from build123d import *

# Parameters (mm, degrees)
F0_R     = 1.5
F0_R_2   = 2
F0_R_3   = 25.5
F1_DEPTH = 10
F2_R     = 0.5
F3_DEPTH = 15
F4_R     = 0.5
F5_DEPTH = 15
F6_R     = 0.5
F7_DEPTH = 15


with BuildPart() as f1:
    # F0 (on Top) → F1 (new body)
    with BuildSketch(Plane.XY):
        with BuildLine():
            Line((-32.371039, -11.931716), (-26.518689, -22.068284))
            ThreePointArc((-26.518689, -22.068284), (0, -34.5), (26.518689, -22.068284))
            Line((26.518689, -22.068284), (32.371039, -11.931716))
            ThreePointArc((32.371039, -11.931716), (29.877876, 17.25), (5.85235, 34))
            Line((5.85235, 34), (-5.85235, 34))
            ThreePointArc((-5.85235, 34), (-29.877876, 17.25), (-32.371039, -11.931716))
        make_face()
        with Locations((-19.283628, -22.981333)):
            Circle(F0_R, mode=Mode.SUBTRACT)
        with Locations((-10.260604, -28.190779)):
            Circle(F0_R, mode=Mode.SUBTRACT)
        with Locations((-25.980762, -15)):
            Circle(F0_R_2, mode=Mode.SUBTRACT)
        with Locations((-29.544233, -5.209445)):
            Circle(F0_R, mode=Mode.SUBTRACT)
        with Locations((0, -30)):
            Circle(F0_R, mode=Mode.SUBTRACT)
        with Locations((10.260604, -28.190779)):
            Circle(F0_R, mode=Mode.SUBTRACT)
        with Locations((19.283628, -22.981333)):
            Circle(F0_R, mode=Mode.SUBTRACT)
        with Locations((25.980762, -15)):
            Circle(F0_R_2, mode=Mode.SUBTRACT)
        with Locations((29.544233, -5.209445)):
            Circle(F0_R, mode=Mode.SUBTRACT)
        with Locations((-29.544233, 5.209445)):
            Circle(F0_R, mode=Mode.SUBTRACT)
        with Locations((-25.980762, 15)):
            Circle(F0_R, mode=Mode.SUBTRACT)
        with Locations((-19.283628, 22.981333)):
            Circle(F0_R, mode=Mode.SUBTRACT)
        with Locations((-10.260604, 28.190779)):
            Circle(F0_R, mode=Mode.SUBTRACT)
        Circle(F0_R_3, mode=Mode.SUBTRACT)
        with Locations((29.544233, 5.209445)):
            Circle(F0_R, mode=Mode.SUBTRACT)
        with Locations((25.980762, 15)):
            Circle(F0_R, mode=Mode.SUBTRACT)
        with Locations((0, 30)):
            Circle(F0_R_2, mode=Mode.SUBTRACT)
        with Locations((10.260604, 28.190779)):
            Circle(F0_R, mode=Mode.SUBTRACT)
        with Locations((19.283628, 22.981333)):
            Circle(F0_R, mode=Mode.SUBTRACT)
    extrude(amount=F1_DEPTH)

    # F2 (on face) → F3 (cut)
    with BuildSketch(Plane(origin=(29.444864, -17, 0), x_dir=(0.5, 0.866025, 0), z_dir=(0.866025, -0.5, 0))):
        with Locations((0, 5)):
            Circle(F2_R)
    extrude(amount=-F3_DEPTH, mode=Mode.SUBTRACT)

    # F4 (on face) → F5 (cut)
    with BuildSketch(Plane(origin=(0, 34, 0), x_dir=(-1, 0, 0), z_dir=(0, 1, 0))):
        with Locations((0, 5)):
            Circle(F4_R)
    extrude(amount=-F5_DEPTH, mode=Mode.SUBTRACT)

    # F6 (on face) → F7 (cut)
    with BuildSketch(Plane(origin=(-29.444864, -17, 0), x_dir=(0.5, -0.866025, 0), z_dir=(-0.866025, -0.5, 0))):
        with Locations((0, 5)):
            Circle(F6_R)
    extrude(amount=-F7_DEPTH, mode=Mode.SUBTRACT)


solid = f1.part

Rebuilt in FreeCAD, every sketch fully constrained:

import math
import FreeCAD as App
import Part
import Sketcher
Q = App.Units.Quantity

doc = App.newDocument("Part")
params = doc.addObject("Spreadsheet::Sheet", "Params")
for row, (alias, value) in enumerate([
    ("sketch1_diameter", "3 mm"),
    ("sketch1_diameter2", "4 mm"),
    ("sketch1_diameter3", "51 mm"),
    ("sketch1_radius", "34.500001 mm"),
    ("pad1_length", "10 mm"),
    ("sketch2_diameter", "1 mm"),
    ("pocket1_length", "15 mm"),
    ("sketch3_diameter", "1 mm"),
    ("pocket2_length", "15 mm"),
    ("sketch4_diameter", "1 mm"),
    ("pocket3_length", "15 mm"),
], start=1):
    params.set(f"A{row}", alias)
    params.set(f"B{row}", "=" + value)
    params.setAlias(f"B{row}", alias)

body = doc.addObject("PartDesign::Body", "Body")

# Sketch on XY plane
sketch1 = body.newObject("Sketcher::SketchObject", "Sketch")
sketch1.AttachmentSupport = (doc.getObject("XY_Plane"), [""])
sketch1.MapMode = "FlatFace"
sketch1.addGeometry([
    Part.LineSegment(App.Vector(-32.371039, -11.931716, 0), App.Vector(-26.518689, -22.068284, 0)),  # 0
    Part.ArcOfCircle(Part.Circle(App.Vector(0, 0.000001, 0), App.Vector(0, 0, 1), 34.500001), math.radians(-140.233498), math.radians(-39.766502)),  # 1
    Part.LineSegment(App.Vector(26.518689, -22.068284, 0), App.Vector(32.371039, -11.931716, 0)),  # 2
    Part.ArcOfCircle(Part.Circle(App.Vector(-0.000001, -0.000001, 0), App.Vector(0, 0, 1), 34.500001), math.radians(-20.233497), math.radians(80.233497)),  # 3
    Part.LineSegment(App.Vector(5.85235, 34, 0), App.Vector(-5.85235, 34, 0)),  # 4
    Part.ArcOfCircle(Part.Circle(App.Vector(0.000001, -0.000001, 0), App.Vector(0, 0, 1), 34.500001), math.radians(99.766503), math.radians(200.233497)),  # 5
    Part.Circle(App.Vector(-19.283628, -22.981333, 0), App.Vector(0, 0, 1), 1.5),  # 6
    Part.Circle(App.Vector(-10.260604, -28.190779, 0), App.Vector(0, 0, 1), 1.5),  # 7
    Part.Circle(App.Vector(-25.980762, -15, 0), App.Vector(0, 0, 1), 2),  # 8
    Part.Circle(App.Vector(-29.544233, -5.209445, 0), App.Vector(0, 0, 1), 1.5),  # 9
    Part.Circle(App.Vector(0, -30, 0), App.Vector(0, 0, 1), 1.5),  # 10
    Part.Circle(App.Vector(10.260604, -28.190779, 0), App.Vector(0, 0, 1), 1.5),  # 11
    Part.Circle(App.Vector(19.283628, -22.981333, 0), App.Vector(0, 0, 1), 1.5),  # 12
    Part.Circle(App.Vector(0, 0, 0), App.Vector(0, 0, 1), 25.5),  # 13
    Part.Circle(App.Vector(25.980762, -15, 0), App.Vector(0, 0, 1), 2),  # 14
    Part.Circle(App.Vector(29.544233, -5.209445, 0), App.Vector(0, 0, 1), 1.5),  # 15
    Part.Circle(App.Vector(-29.544233, 5.209445, 0), App.Vector(0, 0, 1), 1.5),  # 16
    Part.Circle(App.Vector(-25.980762, 15, 0), App.Vector(0, 0, 1), 1.5),  # 17
    Part.Circle(App.Vector(-19.283628, 22.981333, 0), App.Vector(0, 0, 1), 1.5),  # 18
    Part.Circle(App.Vector(-10.260604, 28.190779, 0), App.Vector(0, 0, 1), 1.5),  # 19
    Part.Circle(App.Vector(29.544233, 5.209445, 0), App.Vector(0, 0, 1), 1.5),  # 20
    Part.Circle(App.Vector(25.980762, 15, 0), App.Vector(0, 0, 1), 1.5),  # 21
    Part.Circle(App.Vector(0, 30, 0), App.Vector(0, 0, 1), 2),  # 22
    Part.Circle(App.Vector(10.260604, 28.190779, 0), App.Vector(0, 0, 1), 1.5),  # 23
    Part.Circle(App.Vector(19.283628, 22.981333, 0), App.Vector(0, 0, 1), 1.5),  # 24
], False)
sketch1.addConstraint([
    Sketcher.Constraint("Coincident", 0, 2, 1, 1),
    Sketcher.Constraint("Coincident", 1, 2, 2, 1),
    Sketcher.Constraint("Coincident", 2, 2, 3, 1),
    Sketcher.Constraint("Coincident", 3, 2, 4, 1),
    Sketcher.Constraint("Coincident", 4, 2, 5, 1),
    Sketcher.Constraint("Coincident", 5, 2, 0, 1),
    Sketcher.Constraint("Horizontal", 4),
    Sketcher.Constraint("Coincident", 1, 3, -1, 1),
    Sketcher.Constraint("Coincident", 3, 3, -1, 1),
    Sketcher.Constraint("Coincident", 5, 3, -1, 1),
    Sketcher.Constraint("Coincident", 13, 3, -1, 1),
    Sketcher.Constraint("Equal", 1, 3),
    Sketcher.Constraint("Equal", 3, 5),
    Sketcher.Constraint("Equal", 6, 7),
    Sketcher.Constraint("Equal", 7, 9),
    Sketcher.Constraint("Equal", 9, 10),
    Sketcher.Constraint("Equal", 10, 11),
    Sketcher.Constraint("Equal", 11, 12),
    Sketcher.Constraint("Equal", 8, 14),
    Sketcher.Constraint("Equal", 12, 15),
    Sketcher.Constraint("Equal", 15, 16),
    Sketcher.Constraint("Equal", 16, 17),
    Sketcher.Constraint("Equal", 17, 18),
    Sketcher.Constraint("Equal", 18, 19),
    Sketcher.Constraint("Equal", 19, 20),
    Sketcher.Constraint("Equal", 20, 21),
    Sketcher.Constraint("Equal", 14, 22),
    Sketcher.Constraint("Equal", 21, 23),
    Sketcher.Constraint("Equal", 23, 24),
    Sketcher.Constraint("Symmetric", 15, 3, 16, 3, -1, 1),
    Sketcher.Constraint("Symmetric", 14, 3, 17, 3, -1, 1),
    Sketcher.Constraint("Symmetric", 12, 3, 18, 3, -1, 1),
    Sketcher.Constraint("Symmetric", 11, 3, 19, 3, -1, 1),
    Sketcher.Constraint("Symmetric", 9, 3, 20, 3, -1, 1),
    Sketcher.Constraint("Symmetric", 8, 3, 21, 3, -1, 1),
    Sketcher.Constraint("Symmetric", 10, 3, 22, 3, -1, 1),
    Sketcher.Constraint("Symmetric", 7, 3, 23, 3, -1, 1),
    Sketcher.Constraint("Symmetric", 6, 3, 24, 3, -1, 1),
    Sketcher.Constraint("Symmetric", 7, 3, 11, 3, -2),
    Sketcher.Constraint("Symmetric", 6, 3, 12, 3, -2),
    Sketcher.Constraint("Symmetric", 8, 3, 14, 3, -2),
    Sketcher.Constraint("Symmetric", 9, 3, 15, 3, -2),
    Sketcher.Constraint("PointOnObject", 10, 3, -2),
    Sketcher.Constraint("Horizontal", 0, 2, 1, 2),
    Sketcher.Constraint("Horizontal", 2, 2, 5, 2),
    Sketcher.Constraint("Diameter", 6, Q("3 mm")),
    Sketcher.Constraint("Diameter", 8, Q("4 mm")),
    Sketcher.Constraint("Diameter", 13, Q("51 mm")),
    Sketcher.Constraint("Radius", 1, Q("34.500001 mm")),
    Sketcher.Constraint("Angle", 0, Q("-60.000001 deg")),
    Sketcher.Constraint("DistanceY", 8, 3, -1, 1, Q("15 mm")),
    Sketcher.Constraint("DistanceY", 10, 3, -1, 1, Q("30 mm")),
    Sketcher.Constraint("DistanceY", -1, 1, 3, 2, Q("34 mm")),
    Sketcher.Constraint("Distance", 0, Q("11.7047 mm")),
    Sketcher.Constraint("DistanceX", 6, 3, -1, 1, Q("19.283628 mm")),
    Sketcher.Constraint("DistanceY", 7, 3, -1, 1, Q("28.190779 mm")),
    Sketcher.Constraint("DistanceX", 8, 3, -1, 1, Q("25.980762 mm")),
    Sketcher.Constraint("DistanceX", 9, 3, 8, 3, Q("3.563471 mm")),
    Sketcher.Constraint("DistanceY", 6, 3, 9, 3, Q("17.771888 mm")),
    Sketcher.Constraint("DistanceX", 9, 3, 7, 3, Q("19.283629 mm")),
    Sketcher.Constraint("DistanceY", 9, 3, 16, 3, Q("10.41889 mm")),
])
sketch1.setExpression("Constraints[45]", "Params.sketch1_diameter")
sketch1.setExpression("Constraints[46]", "Params.sketch1_diameter2")
sketch1.setExpression("Constraints[47]", "Params.sketch1_diameter3")
sketch1.setExpression("Constraints[48]", "Params.sketch1_radius")
pad1 = body.newObject("PartDesign::Pad", "Pad")
pad1.Profile = sketch1
pad1.setExpression("Length", "Params.pad1_length")

# Sketch on an angled plane
sketch2 = body.newObject("Sketcher::SketchObject", "Sketch001")
sketch2.Placement = App.Placement(App.Vector(29.444864, -17, 0), App.Rotation(App.Vector(0.500000175, 0.866025303, 0), App.Vector(0, 0, 1), App.Vector(0.866025303, -0.500000175, 0), "ZXY"))
sketch2.addGeometry(Part.Circle(App.Vector(0, 5, 0), App.Vector(0, 0, 1), 0.5), False)
sketch2.addConstraint([
    Sketcher.Constraint("PointOnObject", 0, 3, -2),
    Sketcher.Constraint("Diameter", 0, Q("1 mm")),
    Sketcher.Constraint("DistanceY", -1, 1, 0, 3, Q("5 mm")),
])
sketch2.setExpression("Constraints[1]", "Params.sketch2_diameter")
pocket1 = body.newObject("PartDesign::Pocket", "Pocket")
pocket1.Profile = sketch2
pocket1.setExpression("Length", "Params.pocket1_length")

# Sketch on XZ plane
sketch3 = body.newObject("Sketcher::SketchObject", "Sketch002")
sketch3.AttachmentSupport = (doc.getObject("XZ_Plane"), [""])
sketch3.MapMode = "FlatFace"
sketch3.AttachmentOffset = App.Placement(App.Vector(0, 0, -34), App.Rotation())
sketch3.addGeometry(Part.Circle(App.Vector(0, 5, 0), App.Vector(0, 0, 1), 0.5), False)
sketch3.addConstraint([
    Sketcher.Constraint("PointOnObject", 0, 3, -2),
    Sketcher.Constraint("Diameter", 0, Q("1 mm")),
    Sketcher.Constraint("DistanceY", -1, 1, 0, 3, Q("5 mm")),
])
sketch3.setExpression("Constraints[1]", "Params.sketch3_diameter")
pocket2 = body.newObject("PartDesign::Pocket", "Pocket001")
pocket2.Profile = sketch3
pocket2.setExpression("Length", "Params.pocket2_length")
pocket2.Reversed = True

# Sketch on an angled plane
sketch4 = body.newObject("Sketcher::SketchObject", "Sketch003")
sketch4.Placement = App.Placement(App.Vector(-29.444864, -17, 0), App.Rotation(App.Vector(0.500000175, -0.866025303, 0), App.Vector(0, 0, 1), App.Vector(-0.866025303, -0.500000175, 0), "ZXY"))
sketch4.addGeometry(Part.Circle(App.Vector(0, 5, 0), App.Vector(0, 0, 1), 0.5), False)
sketch4.addConstraint([
    Sketcher.Constraint("PointOnObject", 0, 3, -2),
    Sketcher.Constraint("Diameter", 0, Q("1 mm")),
    Sketcher.Constraint("DistanceY", -1, 1, 0, 3, Q("5 mm")),
])
sketch4.setExpression("Constraints[1]", "Params.sketch4_diameter")
pocket3 = body.newObject("PartDesign::Pocket", "Pocket002")
pocket3.Profile = sketch4
pocket3.setExpression("Length", "Params.pocket3_length")

doc.recompute()
